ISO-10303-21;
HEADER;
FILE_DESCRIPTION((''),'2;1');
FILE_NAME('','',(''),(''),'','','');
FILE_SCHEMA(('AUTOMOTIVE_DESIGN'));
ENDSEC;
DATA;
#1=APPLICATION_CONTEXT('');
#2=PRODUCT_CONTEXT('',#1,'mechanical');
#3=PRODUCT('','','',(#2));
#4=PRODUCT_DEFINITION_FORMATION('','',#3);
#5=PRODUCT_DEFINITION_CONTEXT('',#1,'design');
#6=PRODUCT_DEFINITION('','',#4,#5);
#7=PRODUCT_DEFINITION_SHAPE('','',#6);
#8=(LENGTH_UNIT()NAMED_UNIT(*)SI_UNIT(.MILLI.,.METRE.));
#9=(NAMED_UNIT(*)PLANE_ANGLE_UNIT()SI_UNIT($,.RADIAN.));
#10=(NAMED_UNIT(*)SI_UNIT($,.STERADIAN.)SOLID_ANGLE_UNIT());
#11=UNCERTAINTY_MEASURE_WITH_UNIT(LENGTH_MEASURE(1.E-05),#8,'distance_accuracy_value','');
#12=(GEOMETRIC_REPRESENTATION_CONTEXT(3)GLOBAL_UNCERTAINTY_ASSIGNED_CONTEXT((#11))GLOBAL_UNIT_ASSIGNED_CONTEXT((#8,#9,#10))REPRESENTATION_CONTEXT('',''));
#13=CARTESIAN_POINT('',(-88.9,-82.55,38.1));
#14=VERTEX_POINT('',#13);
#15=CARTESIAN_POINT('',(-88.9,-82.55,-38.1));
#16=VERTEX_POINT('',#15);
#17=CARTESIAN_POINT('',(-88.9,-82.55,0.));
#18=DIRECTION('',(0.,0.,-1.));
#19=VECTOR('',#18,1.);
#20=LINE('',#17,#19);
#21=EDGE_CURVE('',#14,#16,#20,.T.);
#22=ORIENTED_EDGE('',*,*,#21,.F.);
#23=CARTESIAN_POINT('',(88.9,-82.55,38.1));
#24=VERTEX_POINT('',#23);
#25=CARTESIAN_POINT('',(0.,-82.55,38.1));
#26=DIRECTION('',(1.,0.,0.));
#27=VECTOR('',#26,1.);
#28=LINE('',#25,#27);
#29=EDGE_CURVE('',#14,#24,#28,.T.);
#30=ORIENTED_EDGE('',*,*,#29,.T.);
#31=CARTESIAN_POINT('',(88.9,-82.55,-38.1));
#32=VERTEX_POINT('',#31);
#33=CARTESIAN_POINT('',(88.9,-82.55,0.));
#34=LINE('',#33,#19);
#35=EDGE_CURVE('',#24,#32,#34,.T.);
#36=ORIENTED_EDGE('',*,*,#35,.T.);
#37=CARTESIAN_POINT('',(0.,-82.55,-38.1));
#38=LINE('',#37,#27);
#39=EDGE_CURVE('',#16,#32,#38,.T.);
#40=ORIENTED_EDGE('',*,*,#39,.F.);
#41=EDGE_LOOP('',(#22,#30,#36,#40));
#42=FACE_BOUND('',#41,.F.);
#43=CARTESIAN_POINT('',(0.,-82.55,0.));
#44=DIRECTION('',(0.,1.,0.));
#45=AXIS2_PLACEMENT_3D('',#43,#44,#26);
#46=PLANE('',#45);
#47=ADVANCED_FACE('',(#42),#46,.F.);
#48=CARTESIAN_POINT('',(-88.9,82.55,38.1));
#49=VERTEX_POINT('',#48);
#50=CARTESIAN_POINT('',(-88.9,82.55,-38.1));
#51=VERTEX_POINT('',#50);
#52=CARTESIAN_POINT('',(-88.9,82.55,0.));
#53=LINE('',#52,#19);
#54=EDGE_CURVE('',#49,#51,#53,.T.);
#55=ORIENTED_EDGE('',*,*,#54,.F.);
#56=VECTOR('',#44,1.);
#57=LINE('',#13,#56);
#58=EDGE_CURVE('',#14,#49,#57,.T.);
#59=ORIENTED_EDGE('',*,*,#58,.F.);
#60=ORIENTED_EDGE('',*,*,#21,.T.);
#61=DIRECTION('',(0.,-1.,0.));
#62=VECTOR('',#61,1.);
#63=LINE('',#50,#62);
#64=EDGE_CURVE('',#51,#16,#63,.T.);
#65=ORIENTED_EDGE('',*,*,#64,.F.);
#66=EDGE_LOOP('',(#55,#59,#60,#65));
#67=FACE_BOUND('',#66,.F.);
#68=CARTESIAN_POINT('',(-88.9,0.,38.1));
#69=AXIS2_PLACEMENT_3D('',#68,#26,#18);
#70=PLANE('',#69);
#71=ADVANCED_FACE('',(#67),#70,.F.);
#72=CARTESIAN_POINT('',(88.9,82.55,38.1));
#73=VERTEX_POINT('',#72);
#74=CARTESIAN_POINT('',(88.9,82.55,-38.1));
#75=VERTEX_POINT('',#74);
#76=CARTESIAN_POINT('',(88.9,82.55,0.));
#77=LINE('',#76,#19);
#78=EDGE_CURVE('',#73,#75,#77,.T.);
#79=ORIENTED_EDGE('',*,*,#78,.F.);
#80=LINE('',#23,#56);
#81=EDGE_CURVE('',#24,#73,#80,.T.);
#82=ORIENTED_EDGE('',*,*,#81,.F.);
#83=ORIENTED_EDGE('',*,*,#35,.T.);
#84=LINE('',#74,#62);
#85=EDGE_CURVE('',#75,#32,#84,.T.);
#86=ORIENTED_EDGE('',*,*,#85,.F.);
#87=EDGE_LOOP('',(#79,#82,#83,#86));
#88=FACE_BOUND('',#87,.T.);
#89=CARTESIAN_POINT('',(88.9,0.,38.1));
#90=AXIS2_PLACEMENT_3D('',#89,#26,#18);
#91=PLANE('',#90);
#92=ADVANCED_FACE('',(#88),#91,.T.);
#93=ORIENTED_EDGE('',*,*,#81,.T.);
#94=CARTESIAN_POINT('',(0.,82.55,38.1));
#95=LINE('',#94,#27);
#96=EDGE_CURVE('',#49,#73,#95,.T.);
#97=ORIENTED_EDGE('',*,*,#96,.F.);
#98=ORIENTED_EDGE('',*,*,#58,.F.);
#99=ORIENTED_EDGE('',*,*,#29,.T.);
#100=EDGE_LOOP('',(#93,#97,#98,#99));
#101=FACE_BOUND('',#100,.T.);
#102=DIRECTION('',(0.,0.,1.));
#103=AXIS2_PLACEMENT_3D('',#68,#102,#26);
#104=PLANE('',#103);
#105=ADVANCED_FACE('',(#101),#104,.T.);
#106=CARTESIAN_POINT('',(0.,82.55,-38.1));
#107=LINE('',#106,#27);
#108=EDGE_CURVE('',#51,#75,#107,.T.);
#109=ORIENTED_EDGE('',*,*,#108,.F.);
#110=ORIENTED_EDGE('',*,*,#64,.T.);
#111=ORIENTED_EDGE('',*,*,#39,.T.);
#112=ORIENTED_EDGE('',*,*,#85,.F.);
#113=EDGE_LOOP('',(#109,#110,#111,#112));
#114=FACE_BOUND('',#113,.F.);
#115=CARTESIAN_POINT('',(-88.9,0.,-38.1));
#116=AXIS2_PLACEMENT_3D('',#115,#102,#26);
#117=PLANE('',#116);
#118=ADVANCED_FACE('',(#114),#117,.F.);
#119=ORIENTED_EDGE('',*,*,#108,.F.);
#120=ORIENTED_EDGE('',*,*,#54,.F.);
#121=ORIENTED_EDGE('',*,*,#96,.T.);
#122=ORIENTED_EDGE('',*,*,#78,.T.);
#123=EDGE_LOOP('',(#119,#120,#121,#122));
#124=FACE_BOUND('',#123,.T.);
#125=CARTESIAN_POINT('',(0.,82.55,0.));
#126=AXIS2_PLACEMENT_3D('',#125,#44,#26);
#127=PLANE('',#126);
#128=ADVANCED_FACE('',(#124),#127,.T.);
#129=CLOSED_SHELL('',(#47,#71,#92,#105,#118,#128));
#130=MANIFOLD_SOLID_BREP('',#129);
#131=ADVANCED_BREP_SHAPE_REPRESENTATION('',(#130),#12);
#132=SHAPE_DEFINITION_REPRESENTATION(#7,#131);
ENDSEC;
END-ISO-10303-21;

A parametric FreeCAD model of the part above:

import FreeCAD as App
import Part
import Sketcher

V = App.Vector
Q = App.Units.Quantity


def add_polygon(sketch, points):
    """Adds a closed chain of lines whose ends are joined by coincident constraints."""
    first, n = sketch.GeometryCount, len(points)
    for a, b in zip(points, points[1:] + points[:1]):
        sketch.addGeometry(Part.LineSegment(App.Vector(*a, 0), App.Vector(*b, 0)), False)
    for i in range(n):
        sketch.addConstraint(Sketcher.Constraint("Coincident", first + i, 2, first + (i + 1) % n, 1))

doc = App.newDocument("Part")
params = doc.addObject("Spreadsheet::Sheet", "Params")
for row, (alias, value) in enumerate([
    ("sketch1_width", "7 in"),
    ("sketch1_height", "3 in"),
    ("pad1_length", "6.5 in"),
], start=1):
    params.set(f"A{row}", alias)
    params.set(f"B{row}", "=" + value)
    params.setAlias(f"B{row}", alias)

body = doc.addObject("PartDesign::Body", "Body")

# Sketch on XZ plane
sketch1 = body.newObject("Sketcher::SketchObject", "Sketch")
sketch1.AttachmentSupport = (doc.getObject("XZ_Plane"), [""])
sketch1.MapMode = "FlatFace"
add_polygon(sketch1, [(-89, -38), (-89, 38), (89, 38), (89, -38)])  # lines 0-3
sketch1.addConstraint([
    Sketcher.Constraint("Vertical", 0),
    Sketcher.Constraint("Horizontal", 1),
    Sketcher.Constraint("Vertical", 2),
    Sketcher.Constraint("Horizontal", 3),
    Sketcher.Constraint("Symmetric", 0, 2, 2, 2, -1, 1),
    Sketcher.Constraint("DistanceX", 1, 1, 1, 2, Q("7 in")),
    Sketcher.Constraint("DistanceY", 0, 1, 0, 2, Q("3 in")),
])
sketch1.setExpression("Constraints[9]", "Params.sketch1_width")
sketch1.setExpression("Constraints[10]", "Params.sketch1_height")
pad1 = body.newObject("PartDesign::Pad", "Pad")
pad1.Profile = sketch1
pad1.setExpression("Length", "Params.pad1_length")
pad1.Midplane = True

doc.recompute()
